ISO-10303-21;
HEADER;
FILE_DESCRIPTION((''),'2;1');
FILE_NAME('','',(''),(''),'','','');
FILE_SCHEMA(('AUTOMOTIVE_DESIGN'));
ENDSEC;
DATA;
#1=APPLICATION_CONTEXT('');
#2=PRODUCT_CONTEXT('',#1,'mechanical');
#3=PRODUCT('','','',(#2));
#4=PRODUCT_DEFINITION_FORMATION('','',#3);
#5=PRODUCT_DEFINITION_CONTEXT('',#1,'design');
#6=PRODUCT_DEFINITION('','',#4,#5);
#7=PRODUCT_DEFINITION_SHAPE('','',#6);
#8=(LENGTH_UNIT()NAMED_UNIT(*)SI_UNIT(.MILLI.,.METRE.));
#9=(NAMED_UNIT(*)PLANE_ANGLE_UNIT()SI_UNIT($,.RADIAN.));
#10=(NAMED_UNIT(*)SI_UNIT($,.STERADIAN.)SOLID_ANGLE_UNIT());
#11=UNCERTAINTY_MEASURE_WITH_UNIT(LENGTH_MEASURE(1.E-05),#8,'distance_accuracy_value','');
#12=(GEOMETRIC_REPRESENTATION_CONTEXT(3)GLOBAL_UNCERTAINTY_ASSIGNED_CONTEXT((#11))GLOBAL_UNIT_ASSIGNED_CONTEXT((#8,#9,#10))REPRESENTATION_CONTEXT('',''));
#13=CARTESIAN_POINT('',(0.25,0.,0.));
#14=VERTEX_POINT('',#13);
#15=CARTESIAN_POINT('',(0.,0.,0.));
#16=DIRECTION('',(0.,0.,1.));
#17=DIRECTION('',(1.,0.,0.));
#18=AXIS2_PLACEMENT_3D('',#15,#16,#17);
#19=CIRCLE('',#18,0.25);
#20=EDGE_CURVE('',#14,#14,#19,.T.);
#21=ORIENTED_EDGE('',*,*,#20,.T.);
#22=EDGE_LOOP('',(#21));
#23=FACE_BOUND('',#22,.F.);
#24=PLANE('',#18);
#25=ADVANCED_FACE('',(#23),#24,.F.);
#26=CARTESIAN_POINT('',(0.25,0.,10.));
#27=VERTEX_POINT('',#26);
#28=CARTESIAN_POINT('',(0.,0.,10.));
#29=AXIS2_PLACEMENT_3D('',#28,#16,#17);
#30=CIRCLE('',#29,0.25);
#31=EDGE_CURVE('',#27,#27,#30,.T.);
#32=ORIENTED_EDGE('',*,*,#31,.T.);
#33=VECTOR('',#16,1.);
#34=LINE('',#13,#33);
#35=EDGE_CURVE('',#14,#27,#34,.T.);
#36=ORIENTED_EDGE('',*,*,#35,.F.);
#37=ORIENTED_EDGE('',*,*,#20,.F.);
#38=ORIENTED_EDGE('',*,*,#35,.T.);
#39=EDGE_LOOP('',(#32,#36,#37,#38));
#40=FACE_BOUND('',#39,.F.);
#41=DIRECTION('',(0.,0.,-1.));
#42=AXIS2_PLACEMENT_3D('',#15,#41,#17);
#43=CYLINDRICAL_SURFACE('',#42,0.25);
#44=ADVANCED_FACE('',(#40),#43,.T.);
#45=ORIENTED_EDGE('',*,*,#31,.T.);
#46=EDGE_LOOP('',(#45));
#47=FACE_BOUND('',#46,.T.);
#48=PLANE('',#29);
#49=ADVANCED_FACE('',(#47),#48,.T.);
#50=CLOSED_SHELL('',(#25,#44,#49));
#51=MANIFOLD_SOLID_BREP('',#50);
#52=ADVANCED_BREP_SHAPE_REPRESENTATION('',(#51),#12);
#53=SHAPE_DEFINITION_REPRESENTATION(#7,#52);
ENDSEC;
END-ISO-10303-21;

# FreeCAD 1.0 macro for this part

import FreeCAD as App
import Part
import Sketcher
from FreeCAD import Vector

doc = App.newDocument("Part")
body = doc.addObject("PartDesign::Body", "Body")

# Sketch on XY plane
sketch1 = body.newObject("Sketcher::SketchObject", "Sketch")
sketch1.AttachmentSupport = (doc.getObject("XY_Plane"), [""])
sketch1.MapMode = "FlatFace"
sketch1.addGeometry(Part.Circle(Vector(0, 0, 0), Vector(0, 0, 1), 0.25), False)
sketch1.addConstraint(Sketcher.Constraint("Coincident", 0, 3, -1, 1))
sketch1.addConstraint(Sketcher.Constraint("Diameter", 0, 0.5))
pad1 = body.newObject("PartDesign::Pad", "Pad")
pad1.Profile = sketch1
pad1.Length = 10

doc.recompute()
